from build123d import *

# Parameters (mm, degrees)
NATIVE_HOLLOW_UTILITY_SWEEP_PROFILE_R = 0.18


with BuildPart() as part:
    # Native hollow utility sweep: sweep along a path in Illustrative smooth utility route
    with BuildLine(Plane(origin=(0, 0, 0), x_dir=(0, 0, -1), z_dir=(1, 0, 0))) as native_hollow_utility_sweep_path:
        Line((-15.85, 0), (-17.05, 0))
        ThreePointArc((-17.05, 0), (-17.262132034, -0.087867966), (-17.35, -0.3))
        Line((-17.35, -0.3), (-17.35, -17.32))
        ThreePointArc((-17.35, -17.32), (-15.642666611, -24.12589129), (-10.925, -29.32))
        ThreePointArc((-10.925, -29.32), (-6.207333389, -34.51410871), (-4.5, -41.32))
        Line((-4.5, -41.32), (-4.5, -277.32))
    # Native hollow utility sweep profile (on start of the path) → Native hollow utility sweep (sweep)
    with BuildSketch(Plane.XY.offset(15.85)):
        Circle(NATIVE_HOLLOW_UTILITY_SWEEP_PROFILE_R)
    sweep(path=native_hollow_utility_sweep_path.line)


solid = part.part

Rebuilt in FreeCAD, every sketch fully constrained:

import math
import FreeCAD as App
import Part
import Sketcher

V = App.Vector

doc = App.newDocument("Part")
params = doc.addObject("Spreadsheet::Sheet", "Params")
for row, (alias, value) in enumerate([
    ("sketch1_diameter", "0.36 mm"),
    ("sketch2_radius", "0.3 mm"),
    ("sketch2_width", "236 mm"),
    ("sketch2_height", "1.2 mm"),
    ("sketch2_width2", "17.02 mm"),
], start=1):
    params.set(f"A{row}", alias)
    params.set(f"B{row}", "=" + value)
    params.setAlias(f"B{row}", alias)

body = doc.addObject("PartDesign::Body", "Body")

sketch1 = body.newObject("Sketcher::SketchObject", "Sketch")
sketch1.AttachmentSupport = (doc.getObject("XY_Plane"), [""])
sketch1.MapMode = "FlatFace"
sketch1.AttachmentOffset = App.Placement(V(0, 0, 15.85), App.Rotation())
sketch1.addGeometry(Part.Circle(V(0, 0, 0), V(0, 0, 1), 0.18), False)
sketch1.addConstraint([
    Sketcher.Constraint("Coincident", 0, 3, -1, 1),
    Sketcher.Constraint("Diameter", 0, 0.36),
])
sketch1.setExpression("Constraints[1]", "Params.sketch1_diameter")

sketch2 = body.newObject("Sketcher::SketchObject", "Sketch001")
sketch2.AttachmentSupport = (doc.getObject("YZ_Plane"), [""])
sketch2.MapMode = "FlatFace"
sketch2.addGeometry([
    Part.LineSegment(V(0, 15.85, 0), V(0, 17.05, 0)),
    Part.ArcOfCircle(Part.Circle(V(-0.3, 17.05, 0), V(0, 0, 1), 0.3), math.radians(0), math.radians(90)),
    Part.LineSegment(V(-0.3, 17.35, 0), V(-17.32, 17.35, 0)),
    Part.ArcOfCircle(Part.Circle(V(-17.32, 2.93, 0), V(0, 0, 1), 14.42), math.radians(90), math.radians(146)),
    Part.ArcOfCircle(Part.Circle(V(-41.32, 18.92, 0), V(0, 0, 1), 14.42), math.radians(-90), math.radians(-34)),
    Part.LineSegment(V(-41.32, 4.5, 0), V(-277.32, 4.5, 0)),
], False)
sketch2.addConstraint([
    Sketcher.Constraint("Tangent", 0, 2, 1, 1),
    Sketcher.Constraint("Tangent", 1, 2, 2, 1),
    Sketcher.Constraint("Tangent", 2, 2, 3, 1),
    Sketcher.Constraint("Tangent", 3, 2, 4, 2),
    Sketcher.Constraint("Tangent", 4, 1, 5, 1),
    Sketcher.Constraint("Vertical", 0),
    Sketcher.Constraint("Horizontal", 2),
    Sketcher.Constraint("Horizontal", 5),
    Sketcher.Constraint("Equal", 3, 4),
    Sketcher.Constraint("PointOnObject", 0, 1, -2),
    Sketcher.Constraint("Radius", 1, 0.3),
    Sketcher.Constraint("DistanceX", 5, 2, 5, 1, 236.0),
    Sketcher.Constraint("DistanceY", 0, 1, 0, 2, 1.2),
    Sketcher.Constraint("DistanceX", 4, 3, 3, 3, 24.0),
    Sketcher.Constraint("DistanceX", 2, 2, 2, 1, 17.02),
    Sketcher.Constraint("DistanceY", -1, 1, 4, 1, 4.5),
    Sketcher.Constraint("DistanceY", -1, 1, 1, 3, 17.05),
])
sketch2.setExpression("Constraints[10]", "Params.sketch2_radius")
sketch2.setExpression("Constraints[11]", "Params.sketch2_width")
sketch2.setExpression("Constraints[12]", "Params.sketch2_height")
sketch2.setExpression("Constraints[14]", "Params.sketch2_width2")
doc.recompute()

additivepipe = body.newObject("PartDesign::AdditivePipe", "AdditivePipe")
additivepipe.Profile = sketch1
additivepipe.Spine = (sketch2, ["Edge1", "Edge2", "Edge3", "Edge4", "Edge5", "Edge6"])

doc.recompute()
